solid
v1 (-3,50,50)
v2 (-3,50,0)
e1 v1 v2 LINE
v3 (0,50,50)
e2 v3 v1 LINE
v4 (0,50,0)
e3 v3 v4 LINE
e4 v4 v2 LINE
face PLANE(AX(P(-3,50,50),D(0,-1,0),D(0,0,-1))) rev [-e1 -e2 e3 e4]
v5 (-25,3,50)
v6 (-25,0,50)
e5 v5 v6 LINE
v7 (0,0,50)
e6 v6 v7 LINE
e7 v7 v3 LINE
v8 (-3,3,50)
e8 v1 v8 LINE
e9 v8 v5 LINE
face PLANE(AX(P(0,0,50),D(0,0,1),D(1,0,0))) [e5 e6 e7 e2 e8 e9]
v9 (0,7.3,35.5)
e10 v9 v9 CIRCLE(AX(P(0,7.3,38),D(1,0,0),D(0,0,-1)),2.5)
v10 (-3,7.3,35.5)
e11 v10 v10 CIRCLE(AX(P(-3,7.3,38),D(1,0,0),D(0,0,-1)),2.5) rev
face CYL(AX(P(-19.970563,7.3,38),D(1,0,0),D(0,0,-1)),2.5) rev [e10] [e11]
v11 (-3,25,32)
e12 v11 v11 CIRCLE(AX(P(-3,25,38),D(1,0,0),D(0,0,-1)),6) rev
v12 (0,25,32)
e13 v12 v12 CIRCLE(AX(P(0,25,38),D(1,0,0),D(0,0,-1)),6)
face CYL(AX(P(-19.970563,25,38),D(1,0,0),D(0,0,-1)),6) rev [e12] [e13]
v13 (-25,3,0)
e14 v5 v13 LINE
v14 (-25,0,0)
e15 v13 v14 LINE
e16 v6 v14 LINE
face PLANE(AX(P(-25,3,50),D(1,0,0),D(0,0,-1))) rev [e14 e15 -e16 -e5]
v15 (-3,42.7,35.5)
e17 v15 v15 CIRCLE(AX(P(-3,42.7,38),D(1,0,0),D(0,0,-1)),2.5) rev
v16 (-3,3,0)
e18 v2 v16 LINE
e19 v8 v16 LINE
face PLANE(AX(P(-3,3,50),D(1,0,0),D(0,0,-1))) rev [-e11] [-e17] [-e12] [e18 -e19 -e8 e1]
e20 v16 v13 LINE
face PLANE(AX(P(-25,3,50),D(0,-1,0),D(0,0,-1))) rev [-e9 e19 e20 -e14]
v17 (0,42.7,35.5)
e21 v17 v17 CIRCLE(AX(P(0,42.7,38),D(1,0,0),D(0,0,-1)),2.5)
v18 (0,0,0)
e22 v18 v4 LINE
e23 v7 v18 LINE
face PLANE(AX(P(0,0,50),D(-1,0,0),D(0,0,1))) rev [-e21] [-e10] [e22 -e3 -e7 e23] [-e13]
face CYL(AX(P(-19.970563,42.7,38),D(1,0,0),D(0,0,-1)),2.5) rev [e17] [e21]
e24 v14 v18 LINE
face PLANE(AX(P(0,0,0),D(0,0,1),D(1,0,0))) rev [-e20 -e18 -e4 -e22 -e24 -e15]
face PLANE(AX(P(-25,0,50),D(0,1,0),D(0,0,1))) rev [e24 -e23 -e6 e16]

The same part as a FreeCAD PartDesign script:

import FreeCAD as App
import Part
import Sketcher
from FreeCAD import Vector
Q = App.Units.Quantity

doc = App.newDocument("Part")
body = doc.addObject("PartDesign::Body", "Body")

# Sketch on XY plane
sketch1 = body.newObject("Sketcher::SketchObject", "Sketch")
sketch1.AttachmentSupport = (doc.getObject("XY_Plane"), [""])
sketch1.MapMode = "FlatFace"
sketch1.addGeometry(Part.LineSegment(Vector(-25, 0, 0), Vector(0, 0, 0)), False)
sketch1.addGeometry(Part.LineSegment(Vector(0, 0, 0), Vector(0, 50, 0)), False)
sketch1.addGeometry(Part.LineSegment(Vector(0, 50, 0), Vector(-3, 50, 0)), False)
sketch1.addGeometry(Part.LineSegment(Vector(-3, 50, 0), Vector(-3, 3, 0)), False)
sketch1.addGeometry(Part.LineSegment(Vector(-3, 3, 0), Vector(-25, 3, 0)), False)
sketch1.addGeometry(Part.LineSegment(Vector(-25, 3, 0), Vector(-25, 0, 0)), False)
sketch1.addConstraint(Sketcher.Constraint("Coincident", 0, 2, 1, 1))
sketch1.addConstraint(Sketcher.Constraint("Coincident", 1, 2, 2, 1))
sketch1.addConstraint(Sketcher.Constraint("Coincident", 2, 2, 3, 1))
sketch1.addConstraint(Sketcher.Constraint("Coincident", 3, 2, 4, 1))
sketch1.addConstraint(Sketcher.Constraint("Coincident", 4, 2, 5, 1))
sketch1.addConstraint(Sketcher.Constraint("Coincident", 5, 2, 0, 1))
sketch1.addConstraint(Sketcher.Constraint("Horizontal", 0))
sketch1.addConstraint(Sketcher.Constraint("Vertical", 1))
sketch1.addConstraint(Sketcher.Constraint("Horizontal", 2))
sketch1.addConstraint(Sketcher.Constraint("Vertical", 3))
sketch1.addConstraint(Sketcher.Constraint("Horizontal", 4))
sketch1.addConstraint(Sketcher.Constraint("Vertical", 5))
sketch1.addConstraint(Sketcher.Constraint("Coincident", 0, 2, -1, 1))
sketch1.addConstraint(Sketcher.Constraint("Equal", 2, 5))
sketch1.addConstraint(Sketcher.Constraint("DistanceX", 0, 1, 0, 2, Q("25 mm")))
sketch1.addConstraint(Sketcher.Constraint("DistanceX", 2, 2, 2, 1, Q("3 mm")))
sketch1.addConstraint(Sketcher.Constraint("DistanceY", 1, 1, 1, 2, Q("50 mm")))
pad1 = body.newObject("PartDesign::Pad", "Pad")
pad1.Profile = sketch1
pad1.Length = 50

# Sketch on YZ plane
sketch2 = body.newObject("Sketcher::SketchObject", "Sketch001")
sketch2.AttachmentSupport = (doc.getObject("YZ_Plane"), [""])
sketch2.MapMode = "FlatFace"
sketch2.addGeometry(Part.Circle(Vector(25, 38, 0), Vector(0, 0, 1), 6), False)
sketch2.addGeometry(Part.Circle(Vector(42.7, 38, 0), Vector(0, 0, 1), 2.5), False)
sketch2.addGeometry(Part.Circle(Vector(7.3, 38, 0), Vector(0, 0, 1), 2.5), False)
sketch2.addConstraint(Sketcher.Constraint("Equal", 1, 2))
sketch2.addConstraint(Sketcher.Constraint("Horizontal", 0, 3, 1, 3))
sketch2.addConstraint(Sketcher.Constraint("Horizontal", 1, 3, 2, 3))
sketch2.addConstraint(Sketcher.Constraint("Diameter", 0, Q("12 mm")))
sketch2.addConstraint(Sketcher.Constraint("Diameter", 1, Q("5 mm")))
sketch2.addConstraint(Sketcher.Constraint("DistanceX", -1, 1, 0, 3, Q("25 mm")))
sketch2.addConstraint(Sketcher.Constraint("DistanceY", -1, 1, 0, 3, Q("38 mm")))
sketch2.addConstraint(Sketcher.Constraint("DistanceX", -1, 1, 1, 3, Q("42.7 mm")))
sketch2.addConstraint(Sketcher.Constraint("DistanceX", -1, 1, 2, 3, Q("7.3 mm")))
pocket1 = body.newObject("PartDesign::Pocket", "Pocket")
pocket1.Profile = sketch2
pocket1.Length = 3

doc.recompute()
